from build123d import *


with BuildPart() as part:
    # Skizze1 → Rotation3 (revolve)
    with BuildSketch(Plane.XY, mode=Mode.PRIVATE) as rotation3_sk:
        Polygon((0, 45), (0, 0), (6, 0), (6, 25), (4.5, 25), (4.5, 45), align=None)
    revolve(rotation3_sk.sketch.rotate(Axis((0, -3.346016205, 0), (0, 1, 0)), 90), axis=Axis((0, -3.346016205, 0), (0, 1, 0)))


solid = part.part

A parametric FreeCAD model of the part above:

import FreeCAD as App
import Part
import Sketcher

V = App.Vector
Q = App.Units.Quantity


def add_polygon(sketch, points):
    """Adds a closed chain of lines whose ends are joined by coincident constraints."""
    first, n = sketch.GeometryCount, len(points)
    for a, b in zip(points, points[1:] + points[:1]):
        sketch.addGeometry(Part.LineSegment(App.Vector(*a, 0), App.Vector(*b, 0)), False)
    for i in range(n):
        sketch.addConstraint(Sketcher.Constraint("Coincident", first + i, 2, first + (i + 1) % n, 1))

doc = App.newDocument("Part")
params = doc.addObject("Spreadsheet::Sheet", "Params")
for row, (alias, value) in enumerate([
    ("sketch1_width", "6 mm"),
    ("sketch1_height", "45 mm"),
    ("sketch1_height2", "25 mm"),
    ("sketch1_width2", "1.5 mm"),
    ("revolution_angle", "360 deg"),
], start=1):
    params.set(f"A{row}", alias)
    params.set(f"B{row}", "=" + value)
    params.setAlias(f"B{row}", alias)

body = doc.addObject("PartDesign::Body", "Body")

# Sketch on XY plane
sketch1 = body.newObject("Sketcher::SketchObject", "Sketch")
sketch1.AttachmentSupport = (doc.getObject("XY_Plane"), [""])
sketch1.MapMode = "FlatFace"
add_polygon(sketch1, [(0, 45), (0, 0), (6, 0), (6, 25), (4.5, 25), (4.5, 45)])  # lines 0-5
sketch1.addConstraint(Sketcher.Constraint("Vertical", 0))
sketch1.addConstraint(Sketcher.Constraint("Horizontal", 1))
sketch1.addConstraint(Sketcher.Constraint("Vertical", 2))
sketch1.addConstraint(Sketcher.Constraint("Horizontal", 3))
sketch1.addConstraint(Sketcher.Constraint("Vertical", 4))
sketch1.addConstraint(Sketcher.Constraint("Horizontal", 5))
sketch1.addConstraint(Sketcher.Constraint("Coincident", 0, 2, -1, 1))
sketch1.addConstraint(Sketcher.Constraint("DistanceX", 1, 1, 1, 2, Q("6 mm")))
sketch1.addConstraint(Sketcher.Constraint("DistanceY", 0, 2, 0, 1, Q("45 mm")))
sketch1.addConstraint(Sketcher.Constraint("DistanceY", 2, 1, 2, 2, Q("25 mm")))
sketch1.addConstraint(Sketcher.Constraint("DistanceX", 3, 2, 3, 1, Q("1.5 mm")))
sketch1.setExpression("Constraints[13]", "Params.sketch1_width")
sketch1.setExpression("Constraints[14]", "Params.sketch1_height")
sketch1.setExpression("Constraints[15]", "Params.sketch1_height2")
sketch1.setExpression("Constraints[16]", "Params.sketch1_width2")
revolution = body.newObject("PartDesign::Revolution", "Revolution")
revolution.Profile = sketch1
revolution.ReferenceAxis = (sketch1, ["V_Axis"])
revolution.setExpression("Angle", "Params.revolution_angle")

doc.recompute()
